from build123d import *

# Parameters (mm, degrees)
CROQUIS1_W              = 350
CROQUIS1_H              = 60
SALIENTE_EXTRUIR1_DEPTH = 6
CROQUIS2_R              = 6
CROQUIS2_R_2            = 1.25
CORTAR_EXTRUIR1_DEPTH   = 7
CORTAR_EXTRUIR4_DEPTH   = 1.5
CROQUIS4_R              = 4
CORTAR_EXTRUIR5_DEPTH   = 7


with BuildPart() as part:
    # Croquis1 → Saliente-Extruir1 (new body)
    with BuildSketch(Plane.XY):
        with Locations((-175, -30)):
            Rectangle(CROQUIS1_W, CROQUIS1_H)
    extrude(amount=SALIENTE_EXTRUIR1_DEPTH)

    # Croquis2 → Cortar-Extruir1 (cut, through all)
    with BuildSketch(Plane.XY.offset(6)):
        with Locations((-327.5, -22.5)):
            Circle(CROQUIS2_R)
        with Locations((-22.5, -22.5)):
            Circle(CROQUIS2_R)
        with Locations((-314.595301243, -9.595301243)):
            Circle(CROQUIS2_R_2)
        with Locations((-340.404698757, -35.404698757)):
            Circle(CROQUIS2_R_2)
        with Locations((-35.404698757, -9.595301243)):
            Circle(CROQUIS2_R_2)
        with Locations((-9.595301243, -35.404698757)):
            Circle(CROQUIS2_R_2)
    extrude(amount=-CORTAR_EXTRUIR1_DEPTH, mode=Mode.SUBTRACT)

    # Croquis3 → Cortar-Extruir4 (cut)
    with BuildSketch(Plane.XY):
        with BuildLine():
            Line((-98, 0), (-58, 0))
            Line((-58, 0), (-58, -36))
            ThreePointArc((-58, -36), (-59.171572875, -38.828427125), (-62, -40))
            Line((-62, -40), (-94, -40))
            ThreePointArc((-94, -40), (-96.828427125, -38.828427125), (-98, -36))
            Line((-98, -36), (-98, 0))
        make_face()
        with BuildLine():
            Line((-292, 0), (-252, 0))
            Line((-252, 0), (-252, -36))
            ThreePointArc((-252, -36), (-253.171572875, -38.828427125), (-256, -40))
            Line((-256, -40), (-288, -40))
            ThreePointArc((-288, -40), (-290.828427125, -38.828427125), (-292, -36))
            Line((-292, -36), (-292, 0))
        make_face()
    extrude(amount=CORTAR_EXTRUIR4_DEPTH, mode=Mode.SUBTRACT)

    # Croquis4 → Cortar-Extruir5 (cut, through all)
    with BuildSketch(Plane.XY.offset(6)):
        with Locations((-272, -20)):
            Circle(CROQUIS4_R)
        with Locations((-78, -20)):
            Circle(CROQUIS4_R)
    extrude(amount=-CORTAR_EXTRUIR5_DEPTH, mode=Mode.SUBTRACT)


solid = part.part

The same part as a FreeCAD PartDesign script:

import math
import FreeCAD as App
import Part
import Sketcher

doc = App.newDocument("Part")
body = doc.addObject("PartDesign::Body", "Body")

sketch1 = body.newObject("Sketcher::SketchObject", "Sketch")
sketch1.AttachmentSupport = (doc.getObject("XY_Plane"), [""])
sketch1.MapMode = "FlatFace"
sketch1.addGeometry([
    Part.LineSegment(App.Vector(-350, 0, 0), App.Vector(-350, -60, 0)),
    Part.LineSegment(App.Vector(-350, -60, 0), App.Vector(0, -60, 0)),
    Part.LineSegment(App.Vector(0, -60, 0), App.Vector(0, 0, 0)),
    Part.LineSegment(App.Vector(0, 0, 0), App.Vector(-350, 0, 0)),
], False)
sketch1.addConstraint([
    Sketcher.Constraint("Coincident", 0, 2, 1, 1),
    Sketcher.Constraint("Coincident", 1, 2, 2, 1),
    Sketcher.Constraint("Coincident", 2, 2, 3, 1),
    Sketcher.Constraint("Coincident", 3, 2, 0, 1),
    Sketcher.Constraint("Vertical", 0),
    Sketcher.Constraint("Horizontal", 1),
    Sketcher.Constraint("Vertical", 2),
    Sketcher.Constraint("Horizontal", 3),
    Sketcher.Constraint("Coincident", 2, 2, -1, 1),
    Sketcher.Constraint("DistanceX", 1, 1, 1, 2, 350.0),
    Sketcher.Constraint("DistanceY", 0, 2, 0, 1, 60.0),
])
pad1 = body.newObject("PartDesign::Pad", "Pad")
pad1.Profile = sketch1
pad1.Length = 6

sketch2 = body.newObject("Sketcher::SketchObject", "Sketch001")
sketch2.AttachmentSupport = (doc.getObject("XY_Plane"), [""])
sketch2.MapMode = "FlatFace"
sketch2.AttachmentOffset = App.Placement(App.Vector(0, 0, 6), App.Rotation())
sketch2.addGeometry([
    Part.Circle(App.Vector(-327.5, -22.5, 0), App.Vector(0, 0, 1), 6),
    Part.Circle(App.Vector(-22.5, -22.5, 0), App.Vector(0, 0, 1), 6),
    Part.Circle(App.Vector(-314.6, -9.6, 0), App.Vector(0, 0, 1), 1.2),
    Part.Circle(App.Vector(-340.4, -35.4, 0), App.Vector(0, 0, 1), 1.2),
    Part.Circle(App.Vector(-35.4, -9.6, 0), App.Vector(0, 0, 1), 1.2),
    Part.Circle(App.Vector(-9.6, -35.4, 0), App.Vector(0, 0, 1), 1.2),
], False)
sketch2.addConstraint([
    Sketcher.Constraint("Equal", 0, 1),
    Sketcher.Constraint("Equal", 2, 3),
    Sketcher.Constraint("Equal", 3, 4),
    Sketcher.Constraint("Equal", 4, 5),
    Sketcher.Constraint("Horizontal", 0, 3, 1, 3),
    Sketcher.Constraint("Horizontal", 2, 3, 4, 3),
    Sketcher.Constraint("Horizontal", 3, 3, 5, 3),
    Sketcher.Constraint("Diameter", 0, 12.0),
    Sketcher.Constraint("Diameter", 2, 2.5),
    Sketcher.Constraint("DistanceX", 0, 3, 1, 3, 305.0),
    Sketcher.Constraint("DistanceX", 3, 3, 4, 3, 305.0),
    Sketcher.Constraint("DistanceX", 2, 3, 5, 3, 305.0),
    Sketcher.Constraint("DistanceX", 0, 3, -1, 1, 327.5),
    Sketcher.Constraint("DistanceY", 0, 3, -1, 1, 22.5),
    Sketcher.Constraint("DistanceX", 2, 3, -1, 1, 314.595301),
    Sketcher.Constraint("DistanceY", 2, 3, -1, 1, 9.595301),
    Sketcher.Constraint("DistanceX", 3, 3, -1, 1, 340.404699),
    Sketcher.Constraint("DistanceY", 3, 3, -1, 1, 35.404699),
])
pocket1 = body.newObject("PartDesign::Pocket", "Pocket")
pocket1.Profile = sketch2
pocket1.Type = "ThroughAll"

sketch3 = body.newObject("Sketcher::SketchObject", "Sketch002")
sketch3.AttachmentSupport = (doc.getObject("XY_Plane"), [""])
sketch3.MapMode = "FlatFace"
sketch3.addGeometry([
    Part.LineSegment(App.Vector(-58, 0, 0), App.Vector(-98, 0, 0)),
    Part.LineSegment(App.Vector(-98, 0, 0), App.Vector(-98, -36, 0)),
    Part.ArcOfCircle(Part.Circle(App.Vector(-94, -36, 0), App.Vector(0, 0, 1), 4), math.radians(180), math.radians(270)),
    Part.LineSegment(App.Vector(-94, -40, 0), App.Vector(-62, -40, 0)),
    Part.ArcOfCircle(Part.Circle(App.Vector(-62, -36, 0), App.Vector(0, 0, 1), 4), math.radians(-90), math.radians(0)),
    Part.LineSegment(App.Vector(-58, -36, 0), App.Vector(-58, 0, 0)),
    Part.LineSegment(App.Vector(-252, 0, 0), App.Vector(-292, 0, 0)),
    Part.LineSegment(App.Vector(-292, 0, 0), App.Vector(-292, -36, 0)),
    Part.ArcOfCircle(Part.Circle(App.Vector(-288, -36, 0), App.Vector(0, 0, 1), 4), math.radians(180), math.radians(270)),
    Part.LineSegment(App.Vector(-288, -40, 0), App.Vector(-256, -40, 0)),
    Part.ArcOfCircle(Part.Circle(App.Vector(-256, -36, 0), App.Vector(0, 0, 1), 4), math.radians(-90), math.radians(0)),
    Part.LineSegment(App.Vector(-252, -36, 0), App.Vector(-252, 0, 0)),
], False)
sketch3.addConstraint([
    Sketcher.Constraint("Coincident", 0, 2, 1, 1),
    Sketcher.Constraint("Tangent", 1, 2, 2, 1),
    Sketcher.Constraint("Tangent", 2, 2, 3, 1),
    Sketcher.Constraint("Tangent", 3, 2, 4, 1),
    Sketcher.Constraint("Tangent", 4, 2, 5, 1),
    Sketcher.Constraint("Coincident", 5, 2, 0, 1),
    Sketcher.Constraint("Coincident", 6, 2, 7, 1),
    Sketcher.Constraint("Tangent", 7, 2, 8, 1),
    Sketcher.Constraint("Tangent", 8, 2, 9, 1),
    Sketcher.Constraint("Tangent", 9, 2, 10, 1),
    Sketcher.Constraint("Tangent", 10, 2, 11, 1),
    Sketcher.Constraint("Coincident", 11, 2, 6, 1),
    Sketcher.Constraint("Horizontal", 0),
    Sketcher.Constraint("Vertical", 1),
    Sketcher.Constraint("Horizontal", 3),
    Sketcher.Constraint("Vertical", 5),
    Sketcher.Constraint("Horizontal", 6),
    Sketcher.Constraint("Vertical", 7),
    Sketcher.Constraint("Horizontal", 9),
    Sketcher.Constraint("Vertical", 11),
    Sketcher.Constraint("Equal", 2, 4),
    Sketcher.Constraint("Equal", 4, 8),
    Sketcher.Constraint("Equal", 8, 10),
    Sketcher.Constraint("PointOnObject", 0, 2, -1),
    Sketcher.Constraint("PointOnObject", 6, 2, -1),
    Sketcher.Constraint("Horizontal", 4, 3, 8, 3),
    Sketcher.Constraint("Equal", 0, 6),
    Sketcher.Constraint("Radius", 2, 4.0),
    Sketcher.Constraint("DistanceX", 0, 2, 0, 1, 40.0),
    Sketcher.Constraint("DistanceY", 1, 2, 1, 1, 36.0),
    Sketcher.Constraint("DistanceX", 2, 3, -1, 1, 94.0),
    Sketcher.Constraint("DistanceX", 8, 3, -1, 1, 288.0),
])
pocket2 = body.newObject("PartDesign::Pocket", "Pocket001")
pocket2.Profile = sketch3
pocket2.Length = 1.5
pocket2.Reversed = True

sketch4 = body.newObject("Sketcher::SketchObject", "Sketch003")
sketch4.AttachmentSupport = (doc.getObject("XY_Plane"), [""])
sketch4.MapMode = "FlatFace"
sketch4.AttachmentOffset = App.Placement(App.Vector(0, 0, 6), App.Rotation())
sketch4.addGeometry([
    Part.Circle(App.Vector(-272, -20, 0), App.Vector(0, 0, 1), 4),
    Part.Circle(App.Vector(-78, -20, 0), App.Vector(0, 0, 1), 4),
], False)
sketch4.addConstraint([
    Sketcher.Constraint("Equal", 0, 1),
    Sketcher.Constraint("Horizontal", 0, 3, 1, 3),
    Sketcher.Constraint("Diameter", 0, 8.0),
    Sketcher.Constraint("DistanceX", 0, 3, -1, 1, 272.0),
    Sketcher.Constraint("DistanceY", 0, 3, -1, 1, 20.0),
    Sketcher.Constraint("DistanceX", 1, 3, -1, 1, 78.0),
])
pocket3 = body.newObject("PartDesign::Pocket", "Pocket002")
pocket3.Profile = sketch4
pocket3.Type = "ThroughAll"

doc.recompute()
